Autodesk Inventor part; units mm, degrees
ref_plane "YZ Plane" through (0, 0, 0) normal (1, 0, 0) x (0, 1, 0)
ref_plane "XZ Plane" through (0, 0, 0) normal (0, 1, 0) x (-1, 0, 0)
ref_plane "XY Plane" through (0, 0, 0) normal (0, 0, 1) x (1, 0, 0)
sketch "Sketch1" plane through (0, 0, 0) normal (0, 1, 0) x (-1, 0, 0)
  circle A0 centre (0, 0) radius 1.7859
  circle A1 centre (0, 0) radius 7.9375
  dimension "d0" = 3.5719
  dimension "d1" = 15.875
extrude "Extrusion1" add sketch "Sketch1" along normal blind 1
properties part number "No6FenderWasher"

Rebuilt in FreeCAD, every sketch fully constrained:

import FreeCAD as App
import Part
import Sketcher
from FreeCAD import Vector
Q = App.Units.Quantity

doc = App.newDocument("Part")
body = doc.addObject("PartDesign::Body", "Body")

sketch1 = doc.addObject("Sketcher::SketchObject", "Sketch")
body.addObject(sketch1)
sketch1.AttachmentSupport = (doc.XZ_Plane, [""])
sketch1.MapMode = "FlatFace"
sketch1.addGeometry(Part.Circle(Vector(0, 0, 0), Vector(0, 0, 1), 7.9), False)
sketch1.addGeometry(Part.Circle(Vector(0, 0, 0), Vector(0, 0, 1), 1.8), False)
sketch1.addConstraint(Sketcher.Constraint("Coincident", 0, 3, -1, 1))
sketch1.addConstraint(Sketcher.Constraint("Coincident", 1, 3, -1, 1))
sketch1.addConstraint(Sketcher.Constraint("Diameter", 0, Q("0.625 in")))
sketch1.addConstraint(Sketcher.Constraint("Diameter", 1, Q("0.140622 in")))
pad1 = doc.addObject("PartDesign::Pad", "Pad")
body.addObject(pad1)
pad1.Profile = sketch1
pad1.Length = 1
pad1.Reversed = True

doc.recompute()
